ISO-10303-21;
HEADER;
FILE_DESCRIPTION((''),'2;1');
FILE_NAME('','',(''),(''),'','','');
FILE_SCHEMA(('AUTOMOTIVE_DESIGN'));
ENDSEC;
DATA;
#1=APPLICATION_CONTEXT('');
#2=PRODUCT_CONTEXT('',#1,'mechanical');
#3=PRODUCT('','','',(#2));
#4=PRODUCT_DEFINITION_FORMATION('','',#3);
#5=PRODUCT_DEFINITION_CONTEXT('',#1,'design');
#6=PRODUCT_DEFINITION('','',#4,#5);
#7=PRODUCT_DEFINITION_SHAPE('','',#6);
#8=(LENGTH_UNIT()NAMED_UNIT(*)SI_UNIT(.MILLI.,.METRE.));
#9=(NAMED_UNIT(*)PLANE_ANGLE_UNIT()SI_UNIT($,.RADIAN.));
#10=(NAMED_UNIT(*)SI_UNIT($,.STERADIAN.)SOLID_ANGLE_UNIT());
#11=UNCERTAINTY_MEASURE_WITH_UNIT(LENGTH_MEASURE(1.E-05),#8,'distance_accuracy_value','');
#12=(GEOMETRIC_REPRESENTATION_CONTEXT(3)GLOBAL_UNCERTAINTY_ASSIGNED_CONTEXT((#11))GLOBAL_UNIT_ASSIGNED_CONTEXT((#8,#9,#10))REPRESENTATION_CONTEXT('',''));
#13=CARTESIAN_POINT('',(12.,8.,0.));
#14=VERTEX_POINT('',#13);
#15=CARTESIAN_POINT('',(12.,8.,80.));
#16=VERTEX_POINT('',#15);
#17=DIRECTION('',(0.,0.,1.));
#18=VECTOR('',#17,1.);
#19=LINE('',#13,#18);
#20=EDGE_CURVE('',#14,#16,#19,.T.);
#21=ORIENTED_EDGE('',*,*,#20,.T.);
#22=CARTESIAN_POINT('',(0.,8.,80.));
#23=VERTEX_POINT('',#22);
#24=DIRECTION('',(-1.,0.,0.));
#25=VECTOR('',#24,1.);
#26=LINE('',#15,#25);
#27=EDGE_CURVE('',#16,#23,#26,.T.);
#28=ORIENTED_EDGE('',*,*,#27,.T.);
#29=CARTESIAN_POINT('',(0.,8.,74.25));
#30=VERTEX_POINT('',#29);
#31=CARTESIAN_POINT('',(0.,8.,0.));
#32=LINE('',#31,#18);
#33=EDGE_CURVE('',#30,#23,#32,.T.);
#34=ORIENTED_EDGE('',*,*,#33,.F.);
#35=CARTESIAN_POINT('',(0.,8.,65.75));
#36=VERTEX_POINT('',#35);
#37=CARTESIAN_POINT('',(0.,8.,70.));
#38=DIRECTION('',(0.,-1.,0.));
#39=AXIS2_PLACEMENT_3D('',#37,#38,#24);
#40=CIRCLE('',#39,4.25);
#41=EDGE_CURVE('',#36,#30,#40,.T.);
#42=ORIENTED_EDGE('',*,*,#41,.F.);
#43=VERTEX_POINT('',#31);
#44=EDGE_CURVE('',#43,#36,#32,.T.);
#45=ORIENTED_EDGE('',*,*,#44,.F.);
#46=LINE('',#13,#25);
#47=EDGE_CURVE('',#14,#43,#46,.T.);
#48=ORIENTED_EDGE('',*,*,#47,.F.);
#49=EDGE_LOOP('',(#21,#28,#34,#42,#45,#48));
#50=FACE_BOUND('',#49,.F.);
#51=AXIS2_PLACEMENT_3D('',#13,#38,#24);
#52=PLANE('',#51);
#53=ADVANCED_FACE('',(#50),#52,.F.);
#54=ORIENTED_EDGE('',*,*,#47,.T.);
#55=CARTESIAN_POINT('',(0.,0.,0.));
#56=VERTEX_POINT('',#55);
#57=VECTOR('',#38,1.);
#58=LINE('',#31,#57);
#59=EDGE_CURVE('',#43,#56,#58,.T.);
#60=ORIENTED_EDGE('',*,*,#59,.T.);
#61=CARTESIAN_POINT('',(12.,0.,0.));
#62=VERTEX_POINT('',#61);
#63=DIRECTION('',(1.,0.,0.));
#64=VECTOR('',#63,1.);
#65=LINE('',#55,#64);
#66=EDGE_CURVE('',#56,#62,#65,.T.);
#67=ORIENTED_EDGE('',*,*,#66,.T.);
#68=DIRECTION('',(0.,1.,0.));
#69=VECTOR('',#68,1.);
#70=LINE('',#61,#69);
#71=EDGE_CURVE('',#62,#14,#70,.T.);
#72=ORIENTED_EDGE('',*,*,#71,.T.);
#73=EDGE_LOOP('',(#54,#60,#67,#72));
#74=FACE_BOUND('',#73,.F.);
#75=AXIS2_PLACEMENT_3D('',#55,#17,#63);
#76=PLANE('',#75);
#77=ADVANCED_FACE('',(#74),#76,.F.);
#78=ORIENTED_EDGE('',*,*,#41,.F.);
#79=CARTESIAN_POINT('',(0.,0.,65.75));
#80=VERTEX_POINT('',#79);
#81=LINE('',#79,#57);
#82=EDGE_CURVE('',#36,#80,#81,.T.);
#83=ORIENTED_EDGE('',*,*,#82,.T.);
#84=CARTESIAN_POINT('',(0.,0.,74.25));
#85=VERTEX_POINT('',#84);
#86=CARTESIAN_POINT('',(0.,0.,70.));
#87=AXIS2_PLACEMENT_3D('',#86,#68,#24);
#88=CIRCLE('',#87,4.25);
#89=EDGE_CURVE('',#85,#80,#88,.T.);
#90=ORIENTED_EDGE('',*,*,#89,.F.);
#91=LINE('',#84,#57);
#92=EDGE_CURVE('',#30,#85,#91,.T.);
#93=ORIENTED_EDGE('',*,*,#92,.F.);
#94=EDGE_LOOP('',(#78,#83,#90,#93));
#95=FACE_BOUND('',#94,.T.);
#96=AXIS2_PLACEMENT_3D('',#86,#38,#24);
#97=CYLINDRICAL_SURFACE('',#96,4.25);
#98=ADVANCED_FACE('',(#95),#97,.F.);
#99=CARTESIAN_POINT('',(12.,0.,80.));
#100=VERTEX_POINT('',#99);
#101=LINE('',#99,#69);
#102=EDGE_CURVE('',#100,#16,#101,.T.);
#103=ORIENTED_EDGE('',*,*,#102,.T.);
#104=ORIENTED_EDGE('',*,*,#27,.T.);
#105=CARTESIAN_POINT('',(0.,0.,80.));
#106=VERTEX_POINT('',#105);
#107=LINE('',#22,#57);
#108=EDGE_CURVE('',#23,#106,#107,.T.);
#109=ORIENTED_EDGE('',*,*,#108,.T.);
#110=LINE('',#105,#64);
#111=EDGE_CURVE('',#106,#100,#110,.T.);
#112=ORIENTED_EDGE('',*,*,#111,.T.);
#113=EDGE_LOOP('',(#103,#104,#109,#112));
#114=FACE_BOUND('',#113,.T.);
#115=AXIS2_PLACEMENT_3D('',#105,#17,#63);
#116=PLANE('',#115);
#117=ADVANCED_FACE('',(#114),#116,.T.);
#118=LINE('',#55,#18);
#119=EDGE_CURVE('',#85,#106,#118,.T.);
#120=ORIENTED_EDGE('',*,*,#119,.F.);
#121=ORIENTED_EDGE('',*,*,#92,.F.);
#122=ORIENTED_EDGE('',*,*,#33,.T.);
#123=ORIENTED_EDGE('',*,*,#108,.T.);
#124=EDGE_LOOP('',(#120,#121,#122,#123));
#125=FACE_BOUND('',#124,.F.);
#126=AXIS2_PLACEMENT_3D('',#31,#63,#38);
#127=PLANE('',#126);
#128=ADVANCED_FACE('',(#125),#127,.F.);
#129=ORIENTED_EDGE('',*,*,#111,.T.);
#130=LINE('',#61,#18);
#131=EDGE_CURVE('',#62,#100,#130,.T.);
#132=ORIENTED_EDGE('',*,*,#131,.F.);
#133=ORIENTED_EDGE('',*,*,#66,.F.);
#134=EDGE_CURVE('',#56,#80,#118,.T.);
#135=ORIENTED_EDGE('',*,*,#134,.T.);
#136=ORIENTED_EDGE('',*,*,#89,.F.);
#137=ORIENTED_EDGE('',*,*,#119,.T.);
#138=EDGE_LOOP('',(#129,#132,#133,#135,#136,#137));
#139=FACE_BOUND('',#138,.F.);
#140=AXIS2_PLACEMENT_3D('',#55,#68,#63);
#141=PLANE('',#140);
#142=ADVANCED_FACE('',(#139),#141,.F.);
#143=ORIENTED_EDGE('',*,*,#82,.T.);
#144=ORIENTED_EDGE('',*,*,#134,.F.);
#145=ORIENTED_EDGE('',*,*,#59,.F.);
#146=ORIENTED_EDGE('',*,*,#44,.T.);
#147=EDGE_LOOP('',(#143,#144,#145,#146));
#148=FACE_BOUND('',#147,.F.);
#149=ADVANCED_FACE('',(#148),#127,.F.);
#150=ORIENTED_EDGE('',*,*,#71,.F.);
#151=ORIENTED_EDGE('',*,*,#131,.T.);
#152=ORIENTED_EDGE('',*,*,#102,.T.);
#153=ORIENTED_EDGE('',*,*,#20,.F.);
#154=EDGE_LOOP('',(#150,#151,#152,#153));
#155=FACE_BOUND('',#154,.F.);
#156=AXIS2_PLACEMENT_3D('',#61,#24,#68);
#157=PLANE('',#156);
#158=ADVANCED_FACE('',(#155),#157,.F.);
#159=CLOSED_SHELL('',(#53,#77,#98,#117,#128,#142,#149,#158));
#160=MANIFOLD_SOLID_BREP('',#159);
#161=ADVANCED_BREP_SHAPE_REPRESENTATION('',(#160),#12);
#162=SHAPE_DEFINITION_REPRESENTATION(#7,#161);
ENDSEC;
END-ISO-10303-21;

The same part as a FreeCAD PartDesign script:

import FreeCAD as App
import Part
import Sketcher
Q = App.Units.Quantity


def add_polygon(sketch, points):
    """Adds a closed chain of lines whose ends are joined by coincident constraints."""
    first, n = sketch.GeometryCount, len(points)
    for a, b in zip(points, points[1:] + points[:1]):
        sketch.addGeometry(Part.LineSegment(App.Vector(*a, 0), App.Vector(*b, 0)), False)
    for i in range(n):
        sketch.addConstraint(Sketcher.Constraint("Coincident", first + i, 2, first + (i + 1) % n, 1))

doc = App.newDocument("Part")
params = doc.addObject("Spreadsheet::Sheet", "Params")
for row, (alias, value) in enumerate([
    ("sketch1_width", "12 mm"),
    ("sketch1_height", "8 mm"),
    ("pad1_length", "80 mm"),
    ("sketch2_diameter", "8.5 mm"),
    ("pocket1_length", "20 mm"),
], start=1):
    params.set(f"A{row}", alias)
    params.set(f"B{row}", "=" + value)
    params.setAlias(f"B{row}", alias)

body = doc.addObject("PartDesign::Body", "Body")

# Sketch on XY plane
sketch1 = body.newObject("Sketcher::SketchObject", "Sketch")
sketch1.AttachmentSupport = (doc.getObject("XY_Plane"), [""])
sketch1.MapMode = "FlatFace"
add_polygon(sketch1, [(0, 8), (0, 0), (12, 0), (12, 8)])  # lines 0-3
sketch1.addConstraint(Sketcher.Constraint("Vertical", 0))
sketch1.addConstraint(Sketcher.Constraint("Horizontal", 1))
sketch1.addConstraint(Sketcher.Constraint("Vertical", 2))
sketch1.addConstraint(Sketcher.Constraint("Horizontal", 3))
sketch1.addConstraint(Sketcher.Constraint("Coincident", 0, 2, -1, 1))
sketch1.addConstraint(Sketcher.Constraint("DistanceX", 1, 1, 1, 2, Q("12 mm")))
sketch1.addConstraint(Sketcher.Constraint("DistanceY", 0, 2, 0, 1, Q("8 mm")))
sketch1.setExpression("Constraints[9]", "Params.sketch1_width")
sketch1.setExpression("Constraints[10]", "Params.sketch1_height")
pad1 = body.newObject("PartDesign::Pad", "Pad")
pad1.Profile = sketch1
pad1.setExpression("Length", "Params.pad1_length")

# Sketch on XZ plane
sketch2 = body.newObject("Sketcher::SketchObject", "Sketch001")
sketch2.AttachmentSupport = (doc.getObject("XZ_Plane"), [""])
sketch2.MapMode = "FlatFace"
sketch2.addGeometry(Part.Circle(App.Vector(0, 70, 0), App.Vector(0, 0, 1), 4.2), False)
sketch2.addConstraint(Sketcher.Constraint("PointOnObject", 0, 3, -2))
sketch2.addConstraint(Sketcher.Constraint("Diameter", 0, Q("8.5 mm")))
sketch2.addConstraint(Sketcher.Constraint("DistanceY", -1, 1, 0, 3, Q("70 mm")))
sketch2.setExpression("Constraints[1]", "Params.sketch2_diameter")
pocket1 = body.newObject("PartDesign::Pocket", "Pocket")
pocket1.Profile = sketch2
pocket1.setExpression("Length", "Params.pocket1_length")
pocket1.Midplane = True

doc.recompute()
